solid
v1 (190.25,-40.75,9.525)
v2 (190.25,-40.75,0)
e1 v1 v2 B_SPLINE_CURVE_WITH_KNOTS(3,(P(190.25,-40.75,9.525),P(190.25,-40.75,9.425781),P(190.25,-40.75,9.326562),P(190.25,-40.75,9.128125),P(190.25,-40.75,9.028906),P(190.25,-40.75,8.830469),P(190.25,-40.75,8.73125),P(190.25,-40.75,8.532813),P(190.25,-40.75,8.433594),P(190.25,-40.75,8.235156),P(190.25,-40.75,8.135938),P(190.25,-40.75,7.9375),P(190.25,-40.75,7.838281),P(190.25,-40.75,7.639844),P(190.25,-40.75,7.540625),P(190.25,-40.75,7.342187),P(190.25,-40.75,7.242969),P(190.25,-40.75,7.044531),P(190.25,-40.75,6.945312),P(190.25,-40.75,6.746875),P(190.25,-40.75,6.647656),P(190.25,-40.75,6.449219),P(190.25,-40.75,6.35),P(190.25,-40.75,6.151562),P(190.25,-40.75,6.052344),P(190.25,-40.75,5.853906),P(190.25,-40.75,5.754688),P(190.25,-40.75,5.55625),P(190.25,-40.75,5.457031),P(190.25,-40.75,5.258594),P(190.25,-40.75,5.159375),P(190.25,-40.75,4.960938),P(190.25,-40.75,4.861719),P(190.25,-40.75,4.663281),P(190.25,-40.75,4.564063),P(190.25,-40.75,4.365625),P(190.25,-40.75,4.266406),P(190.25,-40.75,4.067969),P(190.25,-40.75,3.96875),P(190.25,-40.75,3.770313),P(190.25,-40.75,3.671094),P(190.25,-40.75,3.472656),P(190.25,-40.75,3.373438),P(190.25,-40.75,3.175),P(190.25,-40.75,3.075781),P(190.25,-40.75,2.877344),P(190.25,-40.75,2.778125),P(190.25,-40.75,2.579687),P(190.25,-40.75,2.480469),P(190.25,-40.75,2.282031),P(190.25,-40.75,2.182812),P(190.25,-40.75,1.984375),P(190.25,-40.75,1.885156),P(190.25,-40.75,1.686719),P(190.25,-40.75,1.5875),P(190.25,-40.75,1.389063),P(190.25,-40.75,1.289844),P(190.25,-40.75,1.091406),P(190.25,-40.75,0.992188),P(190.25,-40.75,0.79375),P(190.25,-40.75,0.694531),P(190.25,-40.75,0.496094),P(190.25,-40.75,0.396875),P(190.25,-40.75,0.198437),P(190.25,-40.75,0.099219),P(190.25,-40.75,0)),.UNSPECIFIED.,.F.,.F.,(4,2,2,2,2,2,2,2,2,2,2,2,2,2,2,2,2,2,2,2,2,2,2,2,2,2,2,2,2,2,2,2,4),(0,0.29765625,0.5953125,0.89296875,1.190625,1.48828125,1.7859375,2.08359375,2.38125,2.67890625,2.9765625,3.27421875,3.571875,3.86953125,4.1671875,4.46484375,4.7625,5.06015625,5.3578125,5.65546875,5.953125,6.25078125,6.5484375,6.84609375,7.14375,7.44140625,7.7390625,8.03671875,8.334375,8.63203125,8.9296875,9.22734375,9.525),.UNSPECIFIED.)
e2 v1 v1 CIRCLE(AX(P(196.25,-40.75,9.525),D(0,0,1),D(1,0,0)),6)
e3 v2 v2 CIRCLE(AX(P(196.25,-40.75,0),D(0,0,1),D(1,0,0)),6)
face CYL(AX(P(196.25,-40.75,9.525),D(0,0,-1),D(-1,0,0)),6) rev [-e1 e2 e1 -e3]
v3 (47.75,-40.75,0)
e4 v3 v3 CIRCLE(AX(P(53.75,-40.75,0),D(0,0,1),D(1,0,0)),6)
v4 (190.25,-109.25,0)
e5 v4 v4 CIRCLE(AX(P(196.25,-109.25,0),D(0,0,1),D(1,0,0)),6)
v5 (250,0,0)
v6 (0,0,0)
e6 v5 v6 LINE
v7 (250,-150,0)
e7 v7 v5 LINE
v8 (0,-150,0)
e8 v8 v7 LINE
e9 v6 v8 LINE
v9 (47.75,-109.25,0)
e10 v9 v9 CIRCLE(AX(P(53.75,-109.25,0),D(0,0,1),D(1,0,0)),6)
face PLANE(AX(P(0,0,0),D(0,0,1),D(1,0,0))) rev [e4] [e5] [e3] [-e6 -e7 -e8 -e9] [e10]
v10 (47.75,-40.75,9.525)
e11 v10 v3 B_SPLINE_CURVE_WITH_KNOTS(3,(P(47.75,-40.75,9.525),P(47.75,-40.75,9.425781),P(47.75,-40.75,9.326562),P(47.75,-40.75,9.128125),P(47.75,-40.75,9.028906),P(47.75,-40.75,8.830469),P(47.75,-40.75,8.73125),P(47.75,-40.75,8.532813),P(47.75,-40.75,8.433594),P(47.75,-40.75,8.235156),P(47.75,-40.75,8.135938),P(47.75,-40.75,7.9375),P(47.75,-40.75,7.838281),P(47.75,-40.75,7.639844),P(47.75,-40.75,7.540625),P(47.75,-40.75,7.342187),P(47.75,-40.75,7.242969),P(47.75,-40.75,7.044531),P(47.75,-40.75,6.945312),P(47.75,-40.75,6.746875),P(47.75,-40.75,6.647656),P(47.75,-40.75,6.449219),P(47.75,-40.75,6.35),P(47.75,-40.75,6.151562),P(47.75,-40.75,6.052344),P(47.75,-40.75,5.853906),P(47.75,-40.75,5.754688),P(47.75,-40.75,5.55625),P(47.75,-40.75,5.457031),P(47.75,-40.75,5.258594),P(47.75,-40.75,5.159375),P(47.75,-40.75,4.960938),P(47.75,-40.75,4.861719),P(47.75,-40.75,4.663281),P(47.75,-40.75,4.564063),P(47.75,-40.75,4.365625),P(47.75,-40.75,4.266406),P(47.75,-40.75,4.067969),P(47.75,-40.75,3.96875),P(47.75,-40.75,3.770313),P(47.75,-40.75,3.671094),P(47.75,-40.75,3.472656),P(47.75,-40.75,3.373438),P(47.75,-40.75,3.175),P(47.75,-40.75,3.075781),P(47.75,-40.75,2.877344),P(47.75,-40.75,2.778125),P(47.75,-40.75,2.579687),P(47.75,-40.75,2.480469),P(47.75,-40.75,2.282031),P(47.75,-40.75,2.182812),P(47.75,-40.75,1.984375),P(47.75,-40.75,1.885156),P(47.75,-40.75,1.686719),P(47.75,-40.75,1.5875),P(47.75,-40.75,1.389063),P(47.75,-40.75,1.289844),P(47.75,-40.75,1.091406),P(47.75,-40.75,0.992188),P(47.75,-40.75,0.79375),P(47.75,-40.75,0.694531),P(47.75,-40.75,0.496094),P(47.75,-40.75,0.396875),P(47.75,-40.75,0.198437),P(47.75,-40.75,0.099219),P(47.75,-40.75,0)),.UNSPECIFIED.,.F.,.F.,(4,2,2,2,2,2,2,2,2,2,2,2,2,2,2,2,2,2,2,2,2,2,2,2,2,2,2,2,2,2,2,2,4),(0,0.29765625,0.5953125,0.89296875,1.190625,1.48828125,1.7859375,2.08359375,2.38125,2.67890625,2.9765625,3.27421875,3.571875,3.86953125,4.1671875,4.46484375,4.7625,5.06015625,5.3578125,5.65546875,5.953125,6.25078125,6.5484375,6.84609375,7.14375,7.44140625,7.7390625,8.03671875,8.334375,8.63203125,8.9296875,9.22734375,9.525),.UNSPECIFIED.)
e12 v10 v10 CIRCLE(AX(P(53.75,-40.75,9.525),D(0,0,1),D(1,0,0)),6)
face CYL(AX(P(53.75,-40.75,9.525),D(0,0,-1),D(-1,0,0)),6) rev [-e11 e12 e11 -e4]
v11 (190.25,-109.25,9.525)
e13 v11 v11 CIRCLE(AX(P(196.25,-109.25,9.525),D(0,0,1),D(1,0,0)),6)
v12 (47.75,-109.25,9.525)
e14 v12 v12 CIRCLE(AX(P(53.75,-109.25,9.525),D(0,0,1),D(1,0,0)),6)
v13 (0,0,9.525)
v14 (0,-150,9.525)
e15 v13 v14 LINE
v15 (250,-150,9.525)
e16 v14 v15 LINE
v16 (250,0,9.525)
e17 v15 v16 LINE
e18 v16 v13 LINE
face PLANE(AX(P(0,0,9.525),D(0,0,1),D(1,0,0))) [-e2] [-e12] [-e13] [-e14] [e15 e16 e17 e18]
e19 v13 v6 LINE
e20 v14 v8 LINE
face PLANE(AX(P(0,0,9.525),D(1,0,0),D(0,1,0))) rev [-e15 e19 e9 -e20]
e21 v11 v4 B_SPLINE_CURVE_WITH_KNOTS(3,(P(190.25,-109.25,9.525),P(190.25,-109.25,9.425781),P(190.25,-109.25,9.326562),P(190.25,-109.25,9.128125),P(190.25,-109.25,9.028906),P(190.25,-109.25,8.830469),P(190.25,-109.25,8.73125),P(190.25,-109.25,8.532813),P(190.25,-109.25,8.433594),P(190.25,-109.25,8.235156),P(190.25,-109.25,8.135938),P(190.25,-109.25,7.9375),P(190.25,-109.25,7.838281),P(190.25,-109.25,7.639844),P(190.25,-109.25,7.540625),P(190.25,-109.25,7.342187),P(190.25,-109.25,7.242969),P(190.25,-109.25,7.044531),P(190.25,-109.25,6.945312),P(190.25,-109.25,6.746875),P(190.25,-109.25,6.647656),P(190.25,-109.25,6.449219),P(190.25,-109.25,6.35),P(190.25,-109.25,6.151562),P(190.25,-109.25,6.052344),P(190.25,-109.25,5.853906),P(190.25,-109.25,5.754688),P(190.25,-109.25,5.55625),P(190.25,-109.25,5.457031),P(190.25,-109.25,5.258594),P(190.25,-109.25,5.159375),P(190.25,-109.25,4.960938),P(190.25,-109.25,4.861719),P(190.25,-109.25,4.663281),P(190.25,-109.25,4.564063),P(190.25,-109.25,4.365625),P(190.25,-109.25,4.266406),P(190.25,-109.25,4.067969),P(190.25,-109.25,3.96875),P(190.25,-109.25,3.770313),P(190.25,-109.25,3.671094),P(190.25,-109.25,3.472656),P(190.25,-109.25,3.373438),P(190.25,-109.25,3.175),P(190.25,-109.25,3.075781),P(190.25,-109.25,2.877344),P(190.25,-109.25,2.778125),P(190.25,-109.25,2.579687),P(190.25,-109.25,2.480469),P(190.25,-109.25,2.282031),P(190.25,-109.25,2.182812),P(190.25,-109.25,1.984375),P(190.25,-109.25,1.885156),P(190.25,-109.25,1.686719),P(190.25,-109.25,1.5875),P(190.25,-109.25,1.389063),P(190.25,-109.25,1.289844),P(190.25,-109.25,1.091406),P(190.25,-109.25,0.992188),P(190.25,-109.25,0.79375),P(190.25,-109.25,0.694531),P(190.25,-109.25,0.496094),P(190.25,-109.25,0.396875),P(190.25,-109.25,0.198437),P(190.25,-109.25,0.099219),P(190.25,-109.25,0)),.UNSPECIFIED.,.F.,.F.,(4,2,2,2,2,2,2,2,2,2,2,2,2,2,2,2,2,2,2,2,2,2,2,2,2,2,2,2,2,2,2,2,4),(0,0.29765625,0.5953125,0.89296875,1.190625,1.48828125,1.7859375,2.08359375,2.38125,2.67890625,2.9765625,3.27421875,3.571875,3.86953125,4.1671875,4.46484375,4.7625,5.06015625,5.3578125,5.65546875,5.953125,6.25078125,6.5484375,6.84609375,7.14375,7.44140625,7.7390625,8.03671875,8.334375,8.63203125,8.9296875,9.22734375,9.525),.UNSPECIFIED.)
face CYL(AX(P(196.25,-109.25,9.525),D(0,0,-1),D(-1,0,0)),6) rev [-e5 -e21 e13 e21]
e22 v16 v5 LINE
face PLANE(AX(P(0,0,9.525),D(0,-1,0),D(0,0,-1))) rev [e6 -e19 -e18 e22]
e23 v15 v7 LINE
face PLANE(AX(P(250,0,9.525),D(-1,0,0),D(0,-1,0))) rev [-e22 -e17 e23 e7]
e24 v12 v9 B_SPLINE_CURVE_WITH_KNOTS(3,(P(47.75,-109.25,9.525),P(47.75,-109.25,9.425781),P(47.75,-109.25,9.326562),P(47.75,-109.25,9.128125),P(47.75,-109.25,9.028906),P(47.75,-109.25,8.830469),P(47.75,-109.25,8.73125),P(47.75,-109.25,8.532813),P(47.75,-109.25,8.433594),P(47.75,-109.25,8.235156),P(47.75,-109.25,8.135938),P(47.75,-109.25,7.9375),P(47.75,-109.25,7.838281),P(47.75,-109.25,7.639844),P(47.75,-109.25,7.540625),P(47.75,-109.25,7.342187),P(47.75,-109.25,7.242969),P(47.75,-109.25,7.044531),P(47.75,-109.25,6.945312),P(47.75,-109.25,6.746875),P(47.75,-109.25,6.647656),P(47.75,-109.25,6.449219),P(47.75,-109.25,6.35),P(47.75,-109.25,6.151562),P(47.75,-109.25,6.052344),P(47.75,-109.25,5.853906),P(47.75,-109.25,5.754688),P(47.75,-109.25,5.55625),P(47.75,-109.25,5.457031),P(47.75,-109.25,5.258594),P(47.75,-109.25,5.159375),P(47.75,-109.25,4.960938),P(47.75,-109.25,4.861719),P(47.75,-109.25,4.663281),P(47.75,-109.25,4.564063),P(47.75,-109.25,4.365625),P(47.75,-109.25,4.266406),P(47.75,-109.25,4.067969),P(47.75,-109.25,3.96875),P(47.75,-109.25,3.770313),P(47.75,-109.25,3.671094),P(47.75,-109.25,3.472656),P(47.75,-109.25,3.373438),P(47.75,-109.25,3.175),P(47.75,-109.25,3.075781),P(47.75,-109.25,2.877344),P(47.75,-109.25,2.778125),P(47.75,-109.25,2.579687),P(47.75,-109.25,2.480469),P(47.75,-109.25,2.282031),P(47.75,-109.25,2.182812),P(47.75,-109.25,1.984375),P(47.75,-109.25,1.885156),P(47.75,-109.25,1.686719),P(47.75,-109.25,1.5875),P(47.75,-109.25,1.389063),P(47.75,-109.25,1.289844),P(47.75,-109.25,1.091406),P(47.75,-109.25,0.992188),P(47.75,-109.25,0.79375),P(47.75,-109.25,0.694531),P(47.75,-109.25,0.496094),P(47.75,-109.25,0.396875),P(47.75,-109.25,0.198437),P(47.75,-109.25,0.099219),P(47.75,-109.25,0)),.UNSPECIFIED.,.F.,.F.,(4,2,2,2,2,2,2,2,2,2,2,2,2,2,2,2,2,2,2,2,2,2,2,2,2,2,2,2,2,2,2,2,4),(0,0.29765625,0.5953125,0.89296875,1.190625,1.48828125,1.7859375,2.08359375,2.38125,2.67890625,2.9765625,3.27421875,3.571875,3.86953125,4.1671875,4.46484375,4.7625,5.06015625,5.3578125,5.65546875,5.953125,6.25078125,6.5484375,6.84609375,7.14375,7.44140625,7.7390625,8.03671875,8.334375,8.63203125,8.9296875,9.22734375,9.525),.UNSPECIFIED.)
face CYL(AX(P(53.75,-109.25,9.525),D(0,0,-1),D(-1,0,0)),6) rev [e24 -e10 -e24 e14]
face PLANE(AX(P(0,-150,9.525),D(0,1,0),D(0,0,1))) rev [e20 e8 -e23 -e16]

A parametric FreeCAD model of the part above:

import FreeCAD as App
import Part
import Sketcher

doc = App.newDocument("Part")
body = doc.addObject("PartDesign::Body", "Body")

# Sketch on XY plane
sketch1 = body.newObject("Sketcher::SketchObject", "Sketch")
sketch1.AttachmentSupport = (doc.getObject("XY_Plane"), [""])
sketch1.MapMode = "FlatFace"
sketch1.addGeometry(Part.LineSegment(App.Vector(0, 0, 0), App.Vector(0, -150, 0)), False)
sketch1.addGeometry(Part.LineSegment(App.Vector(0, -150, 0), App.Vector(250, -150, 0)), False)
sketch1.addGeometry(Part.LineSegment(App.Vector(250, -150, 0), App.Vector(250, 0, 0)), False)
sketch1.addGeometry(Part.LineSegment(App.Vector(250, 0, 0), App.Vector(0, 0, 0)), False)
sketch1.addGeometry(Part.Circle(App.Vector(54, -109, 0), App.Vector(0, 0, 1), 6), False)
sketch1.addGeometry(Part.Circle(App.Vector(196, -109, 0), App.Vector(0, 0, 1), 6), False)
sketch1.addGeometry(Part.Circle(App.Vector(54, -41, 0), App.Vector(0, 0, 1), 6), False)
sketch1.addGeometry(Part.Circle(App.Vector(196, -41, 0), App.Vector(0, 0, 1), 6), False)
sketch1.addConstraint(Sketcher.Constraint("Coincident", 0, 2, 1, 1))
sketch1.addConstraint(Sketcher.Constraint("Coincident", 1, 2, 2, 1))
sketch1.addConstraint(Sketcher.Constraint("Coincident", 2, 2, 3, 1))
sketch1.addConstraint(Sketcher.Constraint("Coincident", 3, 2, 0, 1))
sketch1.addConstraint(Sketcher.Constraint("Vertical", 0))
sketch1.addConstraint(Sketcher.Constraint("Horizontal", 1))
sketch1.addConstraint(Sketcher.Constraint("Vertical", 2))
sketch1.addConstraint(Sketcher.Constraint("Horizontal", 3))
sketch1.addConstraint(Sketcher.Constraint("Coincident", 3, 2, -1, 1))
sketch1.addConstraint(Sketcher.Constraint("Equal", 4, 5))
sketch1.addConstraint(Sketcher.Constraint("Equal", 5, 6))
sketch1.addConstraint(Sketcher.Constraint("Equal", 6, 7))
sketch1.addConstraint(Sketcher.Constraint("Horizontal", 4, 3, 5, 3))
sketch1.addConstraint(Sketcher.Constraint("Horizontal", 6, 3, 7, 3))
sketch1.addConstraint(Sketcher.Constraint("Vertical", 4, 3, 6, 3))
sketch1.addConstraint(Sketcher.Constraint("Vertical", 5, 3, 7, 3))
sketch1.addConstraint(Sketcher.Constraint("Diameter", 4, 12.0))
sketch1.addConstraint(Sketcher.Constraint("DistanceX", 1, 1, 1, 2, 250.0))
sketch1.addConstraint(Sketcher.Constraint("DistanceY", 0, 2, 0, 1, 150.0))
sketch1.addConstraint(Sketcher.Constraint("DistanceX", 4, 3, 5, 3, 142.5))
sketch1.addConstraint(Sketcher.Constraint("DistanceY", 4, 3, 6, 3, 68.5))
sketch1.addConstraint(Sketcher.Constraint("DistanceX", -1, 1, 4, 3, 53.75))
sketch1.addConstraint(Sketcher.Constraint("DistanceY", 4, 3, -1, 1, 109.25))
pad1 = body.newObject("PartDesign::Pad", "Pad")
pad1.Profile = sketch1
pad1.Length = 9.525

doc.recompute()
